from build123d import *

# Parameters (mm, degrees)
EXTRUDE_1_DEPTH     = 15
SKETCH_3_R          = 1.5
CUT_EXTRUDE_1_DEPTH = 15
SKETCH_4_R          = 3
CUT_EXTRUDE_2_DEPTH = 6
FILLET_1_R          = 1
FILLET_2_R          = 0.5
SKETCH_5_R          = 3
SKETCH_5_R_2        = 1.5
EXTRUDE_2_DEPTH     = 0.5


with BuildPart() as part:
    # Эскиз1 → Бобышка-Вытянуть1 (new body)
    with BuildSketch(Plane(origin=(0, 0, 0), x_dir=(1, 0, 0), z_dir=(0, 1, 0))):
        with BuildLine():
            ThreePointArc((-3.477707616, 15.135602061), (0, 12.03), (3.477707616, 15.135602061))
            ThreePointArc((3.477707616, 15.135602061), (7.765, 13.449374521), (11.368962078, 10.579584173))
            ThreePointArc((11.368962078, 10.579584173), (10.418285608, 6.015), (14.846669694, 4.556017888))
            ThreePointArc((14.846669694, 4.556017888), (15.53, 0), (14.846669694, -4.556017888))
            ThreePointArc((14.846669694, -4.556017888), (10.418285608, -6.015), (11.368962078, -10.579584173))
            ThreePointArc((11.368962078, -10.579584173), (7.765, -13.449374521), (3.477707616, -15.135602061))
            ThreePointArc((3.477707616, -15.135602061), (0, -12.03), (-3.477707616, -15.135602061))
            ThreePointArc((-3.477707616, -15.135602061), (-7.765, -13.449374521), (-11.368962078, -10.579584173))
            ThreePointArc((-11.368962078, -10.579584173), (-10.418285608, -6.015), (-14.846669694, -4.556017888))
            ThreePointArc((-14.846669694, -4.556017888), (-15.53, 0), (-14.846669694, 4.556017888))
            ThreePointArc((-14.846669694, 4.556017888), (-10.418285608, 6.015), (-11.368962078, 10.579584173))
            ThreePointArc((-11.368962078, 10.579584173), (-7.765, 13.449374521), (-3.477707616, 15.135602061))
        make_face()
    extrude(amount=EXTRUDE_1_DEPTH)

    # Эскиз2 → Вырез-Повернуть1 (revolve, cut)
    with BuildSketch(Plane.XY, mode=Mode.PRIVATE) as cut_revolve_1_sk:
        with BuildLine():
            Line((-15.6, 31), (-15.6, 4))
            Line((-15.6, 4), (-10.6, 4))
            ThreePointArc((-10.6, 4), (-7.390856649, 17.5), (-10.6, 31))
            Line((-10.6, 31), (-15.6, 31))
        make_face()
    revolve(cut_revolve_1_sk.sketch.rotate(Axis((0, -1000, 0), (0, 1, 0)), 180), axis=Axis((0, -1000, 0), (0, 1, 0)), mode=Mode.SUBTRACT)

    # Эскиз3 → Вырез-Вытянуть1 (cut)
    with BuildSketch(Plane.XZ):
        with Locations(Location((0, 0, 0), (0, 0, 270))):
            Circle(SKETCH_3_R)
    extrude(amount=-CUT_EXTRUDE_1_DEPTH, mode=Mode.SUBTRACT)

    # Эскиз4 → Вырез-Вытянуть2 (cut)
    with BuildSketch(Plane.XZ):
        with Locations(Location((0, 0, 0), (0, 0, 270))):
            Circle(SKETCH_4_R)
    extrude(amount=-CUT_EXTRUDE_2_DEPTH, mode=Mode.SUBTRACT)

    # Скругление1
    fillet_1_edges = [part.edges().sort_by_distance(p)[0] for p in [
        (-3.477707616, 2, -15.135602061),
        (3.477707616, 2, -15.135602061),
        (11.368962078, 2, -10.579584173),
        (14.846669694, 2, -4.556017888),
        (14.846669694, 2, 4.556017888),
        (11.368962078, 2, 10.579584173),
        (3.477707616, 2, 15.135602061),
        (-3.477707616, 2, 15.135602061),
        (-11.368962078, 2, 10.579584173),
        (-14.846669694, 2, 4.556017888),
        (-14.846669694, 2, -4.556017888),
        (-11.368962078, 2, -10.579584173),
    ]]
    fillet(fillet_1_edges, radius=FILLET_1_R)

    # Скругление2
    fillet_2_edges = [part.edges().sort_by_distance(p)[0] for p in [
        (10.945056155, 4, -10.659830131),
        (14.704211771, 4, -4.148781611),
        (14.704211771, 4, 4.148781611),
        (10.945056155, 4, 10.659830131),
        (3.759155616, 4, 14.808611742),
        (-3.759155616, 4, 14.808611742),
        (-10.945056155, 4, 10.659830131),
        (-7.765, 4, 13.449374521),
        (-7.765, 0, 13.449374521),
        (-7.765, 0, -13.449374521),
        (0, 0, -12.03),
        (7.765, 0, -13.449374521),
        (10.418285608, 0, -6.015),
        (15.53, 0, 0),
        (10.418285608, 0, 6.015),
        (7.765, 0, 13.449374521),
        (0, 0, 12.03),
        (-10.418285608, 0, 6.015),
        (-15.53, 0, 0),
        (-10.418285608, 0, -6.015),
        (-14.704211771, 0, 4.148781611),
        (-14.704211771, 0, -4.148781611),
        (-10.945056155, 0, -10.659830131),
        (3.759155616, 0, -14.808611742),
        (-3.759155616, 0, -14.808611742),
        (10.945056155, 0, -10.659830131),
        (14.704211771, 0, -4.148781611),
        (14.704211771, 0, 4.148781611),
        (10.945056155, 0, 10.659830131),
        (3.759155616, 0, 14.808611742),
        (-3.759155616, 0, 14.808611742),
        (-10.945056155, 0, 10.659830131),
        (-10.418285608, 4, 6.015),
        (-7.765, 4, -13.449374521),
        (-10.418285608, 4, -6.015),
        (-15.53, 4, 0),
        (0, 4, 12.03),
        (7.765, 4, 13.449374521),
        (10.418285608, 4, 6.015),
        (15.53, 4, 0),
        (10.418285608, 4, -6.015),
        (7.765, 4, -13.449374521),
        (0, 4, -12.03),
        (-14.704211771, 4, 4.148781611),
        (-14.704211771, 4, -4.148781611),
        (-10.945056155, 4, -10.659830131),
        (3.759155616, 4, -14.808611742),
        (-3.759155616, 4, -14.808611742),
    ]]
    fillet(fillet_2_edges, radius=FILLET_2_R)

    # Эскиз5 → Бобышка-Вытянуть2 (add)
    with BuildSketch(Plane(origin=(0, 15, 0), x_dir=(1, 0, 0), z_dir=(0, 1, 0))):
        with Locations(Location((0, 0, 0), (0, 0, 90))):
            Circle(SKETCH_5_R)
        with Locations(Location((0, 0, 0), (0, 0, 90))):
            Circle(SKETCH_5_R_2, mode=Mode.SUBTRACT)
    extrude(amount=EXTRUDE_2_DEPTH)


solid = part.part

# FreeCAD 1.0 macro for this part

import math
import FreeCAD as App
import Part
import Sketcher

V = App.Vector


def edges_at(feature, points):
    """Names of the edges that pass closest to the given points."""
    edges = feature.Shape.Edges
    near = lambda p: min(range(len(edges)), key=lambda i: edges[i].distToShape(Part.Vertex(*p))[0])
    return sorted({f"Edge{near(p) + 1}" for p in points})

doc = App.newDocument("Part")
body = doc.addObject("PartDesign::Body", "Body")

# Sketch on XZ plane
sketch1 = body.newObject("Sketcher::SketchObject", "Sketch")
sketch1.AttachmentSupport = (doc.getObject("XZ_Plane"), [""])
sketch1.MapMode = "FlatFace"
sketch1.addGeometry(Part.ArcOfCircle(Part.Circle(V(0, -15.53, 0), V(0, 0, 1), 3.5), math.radians(6.470125), math.radians(173.529875)), False)
sketch1.addGeometry(Part.ArcOfCircle(Part.Circle(V(0, 0, 0), V(0, 0, 1), 15.53), math.radians(-137.059751), math.radians(-102.940249)), False)
sketch1.addGeometry(Part.ArcOfCircle(Part.Circle(V(-13.449375, -7.765, 0), V(0, 0, 1), 3.5), math.radians(-53.529875), math.radians(113.529875)), False)
sketch1.addGeometry(Part.ArcOfCircle(Part.Circle(V(0, 0, 0), V(0, 0, 1), 15.53), math.radians(162.940249), math.radians(197.059751)), False)
sketch1.addGeometry(Part.ArcOfCircle(Part.Circle(V(-13.449375, 7.765, 0), V(0, 0, 1), 3.5), math.radians(-113.529875), math.radians(53.529875)), False)
sketch1.addGeometry(Part.ArcOfCircle(Part.Circle(V(0, 0, 0), V(0, 0, 1), 15.53), math.radians(102.940249), math.radians(137.059751)), False)
sketch1.addGeometry(Part.ArcOfCircle(Part.Circle(V(0, 15.53, 0), V(0, 0, 1), 3.5), math.radians(-173.529875), math.radians(-6.470125)), False)
sketch1.addGeometry(Part.ArcOfCircle(Part.Circle(V(0, 0, 0), V(0, 0, 1), 15.53), math.radians(42.940249), math.radians(77.059751)), False)
sketch1.addGeometry(Part.ArcOfCircle(Part.Circle(V(13.449375, 7.765, 0), V(0, 0, 1), 3.5), math.radians(126.470125), math.radians(293.529875)), False)
sketch1.addGeometry(Part.ArcOfCircle(Part.Circle(V(0, 0, 0), V(0, 0, 1), 15.53), math.radians(-17.059751), math.radians(17.059751)), False)
sketch1.addGeometry(Part.ArcOfCircle(Part.Circle(V(13.449375, -7.765, 0), V(0, 0, 1), 3.5), math.radians(66.470125), math.radians(233.529875)), False)
sketch1.addGeometry(Part.ArcOfCircle(Part.Circle(V(0, 0, 0), V(0, 0, 1), 15.53), math.radians(-77.059751), math.radians(-42.940249)), False)
sketch1.addConstraint(Sketcher.Constraint("Coincident", 0, 2, 1, 2))
sketch1.addConstraint(Sketcher.Constraint("Coincident", 1, 1, 2, 1))
sketch1.addConstraint(Sketcher.Constraint("Coincident", 2, 2, 3, 2))
sketch1.addConstraint(Sketcher.Constraint("Coincident", 3, 1, 4, 1))
sketch1.addConstraint(Sketcher.Constraint("Coincident", 4, 2, 5, 2))
sketch1.addConstraint(Sketcher.Constraint("Coincident", 5, 1, 6, 1))
sketch1.addConstraint(Sketcher.Constraint("Coincident", 6, 2, 7, 2))
sketch1.addConstraint(Sketcher.Constraint("Coincident", 7, 1, 8, 1))
sketch1.addConstraint(Sketcher.Constraint("Coincident", 8, 2, 9, 2))
sketch1.addConstraint(Sketcher.Constraint("Coincident", 9, 1, 10, 1))
sketch1.addConstraint(Sketcher.Constraint("Coincident", 10, 2, 11, 2))
sketch1.addConstraint(Sketcher.Constraint("Coincident", 11, 1, 0, 1))
sketch1.addConstraint(Sketcher.Constraint("Coincident", 1, 3, -1, 1))
sketch1.addConstraint(Sketcher.Constraint("Coincident", 3, 3, -1, 1))
sketch1.addConstraint(Sketcher.Constraint("Coincident", 5, 3, -1, 1))
sketch1.addConstraint(Sketcher.Constraint("Coincident", 7, 3, -1, 1))
sketch1.addConstraint(Sketcher.Constraint("Coincident", 9, 3, -1, 1))
sketch1.addConstraint(Sketcher.Constraint("Coincident", 11, 3, -1, 1))
sketch1.addConstraint(Sketcher.Constraint("Equal", 0, 2))
sketch1.addConstraint(Sketcher.Constraint("Equal", 1, 3))
sketch1.addConstraint(Sketcher.Constraint("Equal", 2, 4))
sketch1.addConstraint(Sketcher.Constraint("Equal", 3, 5))
sketch1.addConstraint(Sketcher.Constraint("Equal", 4, 6))
sketch1.addConstraint(Sketcher.Constraint("Equal", 5, 7))
sketch1.addConstraint(Sketcher.Constraint("Equal", 6, 8))
sketch1.addConstraint(Sketcher.Constraint("Equal", 7, 9))
sketch1.addConstraint(Sketcher.Constraint("Equal", 8, 10))
sketch1.addConstraint(Sketcher.Constraint("Equal", 9, 11))
sketch1.addConstraint(Sketcher.Constraint("Symmetric", 0, 3, 6, 3, -1, 1))
sketch1.addConstraint(Sketcher.Constraint("Symmetric", 2, 3, 8, 3, -1, 1))
sketch1.addConstraint(Sketcher.Constraint("Symmetric", 4, 3, 10, 3, -1, 1))
sketch1.addConstraint(Sketcher.Constraint("Symmetric", 4, 3, 8, 3, -2))
sketch1.addConstraint(Sketcher.Constraint("PointOnObject", 0, 3, -2))
sketch1.addConstraint(Sketcher.Constraint("Radius", 0, 3.5))
sketch1.addConstraint(Sketcher.Constraint("Radius", 1, 15.53))
sketch1.addConstraint(Sketcher.Constraint("DistanceY", 0, 3, -1, 1, 15.53))
sketch1.addConstraint(Sketcher.Constraint("DistanceY", 2, 3, 4, 3, 15.53))
sketch1.addConstraint(Sketcher.Constraint("DistanceX", 2, 2, -1, 1, 14.84667))
pad1 = body.newObject("PartDesign::Pad", "Pad")
pad1.Profile = sketch1
pad1.Length = 15
pad1.Reversed = True

# Sketch on XY plane
sketch2 = body.newObject("Sketcher::SketchObject", "Sketch001")
sketch2.AttachmentSupport = (doc.getObject("XY_Plane"), [""])
sketch2.MapMode = "FlatFace"
sketch2.addGeometry(Part.LineSegment(V(-15.6, 31, 0), V(-15.6, 4, 0)), False)
sketch2.addGeometry(Part.LineSegment(V(-15.6, 4, 0), V(-10.6, 4, 0)), False)
sketch2.addGeometry(Part.ArcOfCircle(Part.Circle(V(-37.390857, 17.5, 0), V(0, 0, 1), 30), math.radians(-26.743684), math.radians(26.743684)), False)
sketch2.addGeometry(Part.LineSegment(V(-10.6, 31, 0), V(-15.6, 31, 0)), False)
sketch2.addConstraint(Sketcher.Constraint("Coincident", 0, 2, 1, 1))
sketch2.addConstraint(Sketcher.Constraint("Coincident", 1, 2, 2, 1))
sketch2.addConstraint(Sketcher.Constraint("Coincident", 2, 2, 3, 1))
sketch2.addConstraint(Sketcher.Constraint("Coincident", 3, 2, 0, 1))
sketch2.addConstraint(Sketcher.Constraint("Vertical", 0))
sketch2.addConstraint(Sketcher.Constraint("Horizontal", 1))
sketch2.addConstraint(Sketcher.Constraint("Horizontal", 3))
sketch2.addConstraint(Sketcher.Constraint("Vertical", 1, 2, 2, 2))
sketch2.addConstraint(Sketcher.Constraint("Radius", 2, 30.0))
sketch2.addConstraint(Sketcher.Constraint("DistanceX", 1, 1, 1, 2, 5.0))
sketch2.addConstraint(Sketcher.Constraint("DistanceY", 0, 2, 0, 1, 27.0))
sketch2.addConstraint(Sketcher.Constraint("DistanceY", -1, 1, 0, 2, 4.0))
sketch2.addConstraint(Sketcher.Constraint("DistanceX", 0, 2, -1, 1, 15.6))
groove = body.newObject("PartDesign::Groove", "Groove")
groove.Profile = sketch2
groove.ReferenceAxis = (sketch2, ["V_Axis"])
groove.Angle = 360

# Sketch on XZ plane
sketch3 = body.newObject("Sketcher::SketchObject", "Sketch002")
sketch3.AttachmentSupport = (doc.getObject("XZ_Plane"), [""])
sketch3.MapMode = "FlatFace"
sketch3.addGeometry(Part.Circle(V(0, 0, 0), V(0, 0, 1), 1.5), False)
sketch3.addConstraint(Sketcher.Constraint("Coincident", 0, 3, -1, 1))
sketch3.addConstraint(Sketcher.Constraint("Diameter", 0, 3.0))
pocket1 = body.newObject("PartDesign::Pocket", "Pocket")
pocket1.Profile = sketch3
pocket1.Length = 15

# Sketch on XZ plane
sketch4 = body.newObject("Sketcher::SketchObject", "Sketch003")
sketch4.AttachmentSupport = (doc.getObject("XZ_Plane"), [""])
sketch4.MapMode = "FlatFace"
sketch4.addGeometry(Part.Circle(V(0, 0, 0), V(0, 0, 1), 3), False)
sketch4.addConstraint(Sketcher.Constraint("Coincident", 0, 3, -1, 1))
sketch4.addConstraint(Sketcher.Constraint("Diameter", 0, 6.0))
pocket2 = body.newObject("PartDesign::Pocket", "Pocket001")
pocket2.Profile = sketch4
pocket2.Length = 6
doc.recompute()

fillet = body.newObject("PartDesign::Fillet", "Fillet")
fillet.Base = (pocket2, edges_at(pocket2, [
    (-3.478, 2, -15.136),
    (3.478, 2, -15.136),
    (11.369, 2, -10.58),
    (14.847, 2, -4.556),
    (14.847, 2, 4.556),
    (11.369, 2, 10.58),
    (3.478, 2, 15.136),
    (-3.478, 2, 15.136),
    (-11.369, 2, 10.58),
    (-14.847, 2, 4.556),
    (-14.847, 2, -4.556),
    (-11.369, 2, -10.58),
]))
fillet.Radius = 1
doc.recompute()

fillet2 = body.newObject("PartDesign::Fillet", "Fillet001")
fillet2.Base = (fillet, edges_at(fillet, [
    (10.945, 4, -10.66),
    (14.704, 4, -4.149),
    (14.704, 4, 4.149),
    (10.945, 4, 10.66),
    (3.759, 4, 14.809),
    (-3.759, 4, 14.809),
    (-10.945, 4, 10.66),
    (-7.765, 4, 13.449),
    (-7.765, 0, 13.449),
    (-7.765, 0, -13.449),
    (0, 0, -12.03),
    (7.765, 0, -13.449),
    (10.418, 0, -6.015),
    (15.53, 0, 0),
    (10.418, 0, 6.015),
    (7.765, 0, 13.449),
    (0, 0, 12.03),
    (-10.418, 0, 6.015),
    (-15.53, 0, 0),
    (-10.418, 0, -6.015),
    (-14.704, 0, 4.149),
    (-14.704, 0, -4.149),
    (-10.945, 0, -10.66),
    (3.759, 0, -14.809),
    (-3.759, 0, -14.809),
    (10.945, 0, -10.66),
    (14.704, 0, -4.149),
    (14.704, 0, 4.149),
    (10.945, 0, 10.66),
    (3.759, 0, 14.809),
    (-3.759, 0, 14.809),
    (-10.945, 0, 10.66),
    (-10.418, 4, 6.015),
    (-7.765, 4, -13.449),
    (-10.418, 4, -6.015),
    (-15.53, 4, 0),
    (0, 4, 12.03),
    (7.765, 4, 13.449),
    (10.418, 4, 6.015),
    (15.53, 4, 0),
    (10.418, 4, -6.015),
    (7.765, 4, -13.449),
    (0, 4, -12.03),
    (-14.704, 4, 4.149),
    (-14.704, 4, -4.149),
    (-10.945, 4, -10.66),
    (3.759, 4, -14.809),
    (-3.759, 4, -14.809),
]))
fillet2.Radius = 0.5

# Sketch on XZ plane
sketch5 = body.newObject("Sketcher::SketchObject", "Sketch004")
sketch5.AttachmentSupport = (doc.getObject("XZ_Plane"), [""])
sketch5.MapMode = "FlatFace"
sketch5.AttachmentOffset = App.Placement(V(0, 0, -15), App.Rotation())
sketch5.addGeometry(Part.Circle(V(0, 0, 0), V(0, 0, 1), 3), False)
sketch5.addGeometry(Part.Circle(V(0, 0, 0), V(0, 0, 1), 1.5), False)
sketch5.addConstraint(Sketcher.Constraint("Coincident", 0, 3, -1, 1))
sketch5.addConstraint(Sketcher.Constraint("Coincident", 1, 3, -1, 1))
sketch5.addConstraint(Sketcher.Constraint("Diameter", 0, 6.0))
sketch5.addConstraint(Sketcher.Constraint("Diameter", 1, 3.0))
pad2 = body.newObject("PartDesign::Pad", "Pad001")
pad2.Profile = sketch5
pad2.Length = 0.5
pad2.Reversed = True

doc.recompute()
